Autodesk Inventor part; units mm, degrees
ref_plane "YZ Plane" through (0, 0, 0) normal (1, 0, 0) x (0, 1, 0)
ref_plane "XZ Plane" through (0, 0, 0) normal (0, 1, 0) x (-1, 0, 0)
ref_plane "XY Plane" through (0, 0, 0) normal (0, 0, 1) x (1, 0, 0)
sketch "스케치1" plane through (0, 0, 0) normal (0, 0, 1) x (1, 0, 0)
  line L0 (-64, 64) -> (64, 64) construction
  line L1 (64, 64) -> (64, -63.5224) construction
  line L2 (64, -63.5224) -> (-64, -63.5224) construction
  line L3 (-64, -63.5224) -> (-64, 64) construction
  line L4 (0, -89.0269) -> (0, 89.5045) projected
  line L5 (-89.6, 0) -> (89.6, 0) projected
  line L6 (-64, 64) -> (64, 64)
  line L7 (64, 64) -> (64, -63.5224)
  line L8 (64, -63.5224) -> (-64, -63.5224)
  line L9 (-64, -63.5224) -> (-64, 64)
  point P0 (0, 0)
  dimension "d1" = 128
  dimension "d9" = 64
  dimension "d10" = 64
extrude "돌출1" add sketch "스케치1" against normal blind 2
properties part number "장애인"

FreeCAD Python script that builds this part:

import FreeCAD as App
import Part
import Sketcher


def add_polygon(sketch, points):
    """Adds a closed chain of lines whose ends are joined by coincident constraints."""
    first, n = sketch.GeometryCount, len(points)
    for a, b in zip(points, points[1:] + points[:1]):
        sketch.addGeometry(Part.LineSegment(App.Vector(*a, 0), App.Vector(*b, 0)), False)
    for i in range(n):
        sketch.addConstraint(Sketcher.Constraint("Coincident", first + i, 2, first + (i + 1) % n, 1))

doc = App.newDocument("Part")
body = doc.addObject("PartDesign::Body", "Body")

# Sketch on XY plane
sketch1 = body.newObject("Sketcher::SketchObject", "Sketch")
sketch1.AttachmentSupport = (doc.getObject("XY_Plane"), [""])
sketch1.MapMode = "FlatFace"
add_polygon(sketch1, [(-64, -64), (64, -64), (64, 64), (-64, 64)])  # lines 0-3
sketch1.addConstraint([
    Sketcher.Constraint("Horizontal", 0),
    Sketcher.Constraint("Vertical", 1),
    Sketcher.Constraint("Horizontal", 2),
    Sketcher.Constraint("Vertical", 3),
    Sketcher.Constraint("DistanceX", 0, 1, 0, 2, 128.0),
    Sketcher.Constraint("DistanceX", -1, 1, 0, 2, 64.0),
    Sketcher.Constraint("DistanceY", -1, 1, 1, 2, 64.0),
    Sketcher.Constraint("DistanceY", 1, 1, 1, 2, 127.5224),
])
pad1 = body.newObject("PartDesign::Pad", "Pad")
pad1.Profile = sketch1
pad1.Length = 2
pad1.Reversed = True

doc.recompute()
